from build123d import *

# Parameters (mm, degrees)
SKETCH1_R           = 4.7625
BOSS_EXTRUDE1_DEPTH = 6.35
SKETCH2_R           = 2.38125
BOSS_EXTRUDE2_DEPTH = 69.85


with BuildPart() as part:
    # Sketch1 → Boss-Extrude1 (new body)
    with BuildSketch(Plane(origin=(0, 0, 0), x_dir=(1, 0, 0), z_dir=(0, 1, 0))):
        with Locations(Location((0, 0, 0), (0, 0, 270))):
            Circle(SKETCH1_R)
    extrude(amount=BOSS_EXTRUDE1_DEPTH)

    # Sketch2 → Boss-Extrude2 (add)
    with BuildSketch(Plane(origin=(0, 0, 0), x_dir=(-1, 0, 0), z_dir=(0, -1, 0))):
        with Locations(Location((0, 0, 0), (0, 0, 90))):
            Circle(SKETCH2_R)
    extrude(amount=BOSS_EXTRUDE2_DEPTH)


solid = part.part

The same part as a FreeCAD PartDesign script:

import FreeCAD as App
import Part
import Sketcher

V = App.Vector
Q = App.Units.Quantity

doc = App.newDocument("Part")
body = doc.addObject("PartDesign::Body", "Body")

sketch1 = doc.addObject("Sketcher::SketchObject", "Sketch")
body.addObject(sketch1)
sketch1.AttachmentSupport = (doc.XZ_Plane, [""])
sketch1.MapMode = "FlatFace"
sketch1.addGeometry(Part.Circle(V(0, 0, 0), V(0, 0, 1), 4.8), False)
sketch1.addConstraint([
    Sketcher.Constraint("Coincident", 0, 3, -1, 1),
    Sketcher.Constraint("Diameter", 0, Q("0.375 in")),
])
pad1 = doc.addObject("PartDesign::Pad", "Pad")
body.addObject(pad1)
pad1.Profile = sketch1
pad1.Length = Q("0.25 in")
pad1.Reversed = True

sketch2 = doc.addObject("Sketcher::SketchObject", "Sketch001")
body.addObject(sketch2)
sketch2.AttachmentSupport = (doc.XZ_Plane, [""])
sketch2.MapMode = "FlatFace"
sketch2.addGeometry(Part.Circle(V(0, 0, 0), V(0, 0, 1), 2.4), False)
sketch2.addConstraint([
    Sketcher.Constraint("Coincident", 0, 3, -1, 1),
    Sketcher.Constraint("Diameter", 0, Q("0.1875 in")),
])
pad2 = doc.addObject("PartDesign::Pad", "Pad001")
body.addObject(pad2)
pad2.Profile = sketch2
pad2.Length = Q("2.75 in")

doc.recompute()
